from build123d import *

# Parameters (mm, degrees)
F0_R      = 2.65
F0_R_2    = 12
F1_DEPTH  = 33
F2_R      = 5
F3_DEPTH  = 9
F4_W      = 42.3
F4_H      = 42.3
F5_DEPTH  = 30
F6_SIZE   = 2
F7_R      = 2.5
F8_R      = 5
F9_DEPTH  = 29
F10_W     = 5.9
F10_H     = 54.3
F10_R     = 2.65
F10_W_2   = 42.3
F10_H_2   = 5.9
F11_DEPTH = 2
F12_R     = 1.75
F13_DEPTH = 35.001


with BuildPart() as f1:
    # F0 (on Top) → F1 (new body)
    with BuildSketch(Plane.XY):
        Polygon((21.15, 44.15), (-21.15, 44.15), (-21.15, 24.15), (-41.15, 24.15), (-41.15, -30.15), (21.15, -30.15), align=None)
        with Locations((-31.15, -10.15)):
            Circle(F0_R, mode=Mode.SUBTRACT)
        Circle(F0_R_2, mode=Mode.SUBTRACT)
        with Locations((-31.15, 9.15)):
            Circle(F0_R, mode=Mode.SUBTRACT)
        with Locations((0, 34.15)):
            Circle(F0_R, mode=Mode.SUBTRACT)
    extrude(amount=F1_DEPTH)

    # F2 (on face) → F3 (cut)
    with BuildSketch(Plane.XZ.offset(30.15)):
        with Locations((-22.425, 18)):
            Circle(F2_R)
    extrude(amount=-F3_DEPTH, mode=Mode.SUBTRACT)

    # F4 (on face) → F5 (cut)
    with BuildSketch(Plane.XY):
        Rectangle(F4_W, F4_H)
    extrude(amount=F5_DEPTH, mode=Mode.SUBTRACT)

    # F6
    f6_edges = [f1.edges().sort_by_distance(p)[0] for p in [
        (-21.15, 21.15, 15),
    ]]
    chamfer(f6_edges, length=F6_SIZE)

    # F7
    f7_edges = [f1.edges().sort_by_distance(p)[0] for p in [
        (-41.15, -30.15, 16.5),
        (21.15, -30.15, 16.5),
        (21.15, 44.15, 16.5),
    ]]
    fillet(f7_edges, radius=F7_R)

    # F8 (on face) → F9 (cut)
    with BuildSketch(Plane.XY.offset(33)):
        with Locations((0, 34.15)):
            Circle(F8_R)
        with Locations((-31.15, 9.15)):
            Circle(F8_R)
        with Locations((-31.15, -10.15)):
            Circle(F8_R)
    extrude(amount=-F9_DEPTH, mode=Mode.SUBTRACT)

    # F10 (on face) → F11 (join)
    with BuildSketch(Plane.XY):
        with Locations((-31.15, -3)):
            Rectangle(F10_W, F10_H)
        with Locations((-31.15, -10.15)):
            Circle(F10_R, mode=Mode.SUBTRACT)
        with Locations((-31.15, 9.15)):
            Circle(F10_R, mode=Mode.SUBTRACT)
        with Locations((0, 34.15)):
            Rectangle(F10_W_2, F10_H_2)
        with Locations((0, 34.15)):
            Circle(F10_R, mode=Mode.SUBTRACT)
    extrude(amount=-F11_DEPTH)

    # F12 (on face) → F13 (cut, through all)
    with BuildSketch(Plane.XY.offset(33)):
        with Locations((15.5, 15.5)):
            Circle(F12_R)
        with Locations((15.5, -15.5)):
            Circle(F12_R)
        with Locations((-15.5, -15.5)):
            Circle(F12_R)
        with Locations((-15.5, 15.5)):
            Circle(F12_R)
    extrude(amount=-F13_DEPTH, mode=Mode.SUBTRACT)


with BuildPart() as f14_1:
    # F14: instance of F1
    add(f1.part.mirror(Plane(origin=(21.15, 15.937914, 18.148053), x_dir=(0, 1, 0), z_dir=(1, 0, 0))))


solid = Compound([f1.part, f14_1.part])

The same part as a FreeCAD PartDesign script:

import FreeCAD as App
import Part
import Sketcher
Q = App.Units.Quantity


def edges_at(feature, points):
    """Names of the edges that pass closest to the given points."""
    edges = feature.Shape.Edges
    near = lambda p: min(range(len(edges)), key=lambda i: edges[i].distToShape(Part.Vertex(*p))[0])
    return sorted({f"Edge{near(p) + 1}" for p in points})


def add_polygon(sketch, points):
    """Adds a closed chain of lines whose ends are joined by coincident constraints."""
    first, n = sketch.GeometryCount, len(points)
    for a, b in zip(points, points[1:] + points[:1]):
        sketch.addGeometry(Part.LineSegment(App.Vector(*a, 0), App.Vector(*b, 0)), False)
    for i in range(n):
        sketch.addConstraint(Sketcher.Constraint("Coincident", first + i, 2, first + (i + 1) % n, 1))

doc = App.newDocument("Part")
body = doc.addObject("PartDesign::Body", "Body")

sketch1 = body.newObject("Sketcher::SketchObject", "Sketch")
sketch1.AttachmentSupport = (doc.getObject("XY_Plane"), [""])
sketch1.MapMode = "FlatFace"
add_polygon(sketch1, [(21.15, 44.15), (-21.15, 44.15), (-21.15, 24.15), (-41.15, 24.15), (-41.15, -30.15), (21.15, -30.15)])
sketch1.addGeometry(Part.Circle(App.Vector(-31.15, -10.15, 0), App.Vector(0, 0, 1), 2.65), False)
sketch1.addGeometry(Part.Circle(App.Vector(-31.15, 9.15, 0), App.Vector(0, 0, 1), 2.65), False)
sketch1.addGeometry(Part.Circle(App.Vector(0, 0, 0), App.Vector(0, 0, 1), 12), False)
sketch1.addGeometry(Part.Circle(App.Vector(0, 34.15, 0), App.Vector(0, 0, 1), 2.65), False)
sketch1.addConstraint([
    Sketcher.Constraint("Horizontal", 0),
    Sketcher.Constraint("Vertical", 1),
    Sketcher.Constraint("Horizontal", 2),
    Sketcher.Constraint("Vertical", 3),
    Sketcher.Constraint("Horizontal", 4),
    Sketcher.Constraint("Vertical", 5),
    Sketcher.Constraint("Coincident", 8, 3, -1, 1),
    Sketcher.Constraint("Equal", 6, 7),
    Sketcher.Constraint("Equal", 7, 9),
    Sketcher.Constraint("PointOnObject", 9, 3, -2),
    Sketcher.Constraint("Vertical", 6, 3, 7, 3),
    Sketcher.Constraint("Equal", 2, 1),
    Sketcher.Constraint("Diameter", 8, Q("24 mm")),
    Sketcher.Constraint("Diameter", 6, Q("5.3 mm")),
    Sketcher.Constraint("DistanceX", 2, 2, 2, 1, Q("20 mm")),
    Sketcher.Constraint("DistanceX", 0, 2, 0, 1, Q("42.3 mm")),
    Sketcher.Constraint("DistanceY", 3, 2, 3, 1, Q("54.3 mm")),
    Sketcher.Constraint("DistanceY", 7, 3, 9, 3, Q("25 mm")),
    Sketcher.Constraint("DistanceY", 9, 3, 0, 2, Q("10 mm")),
    Sketcher.Constraint("DistanceX", 7, 3, 0, 2, Q("10 mm")),
    Sketcher.Constraint("DistanceY", 3, 2, 6, 3, Q("20 mm")),
    Sketcher.Constraint("DistanceX", 6, 3, -1, 1, Q("31.15 mm")),
    Sketcher.Constraint("DistanceY", 6, 3, -1, 1, Q("10.15 mm")),
])
pad1 = body.newObject("PartDesign::Pad", "Pad")
pad1.Profile = sketch1
pad1.Length = 33

sketch2 = body.newObject("Sketcher::SketchObject", "Sketch001")
sketch2.AttachmentSupport = (doc.getObject("XZ_Plane"), [""])
sketch2.MapMode = "FlatFace"
sketch2.AttachmentOffset = App.Placement(App.Vector(0, 0, 30.15), App.Rotation())
sketch2.addGeometry(Part.Circle(App.Vector(-22.425, 18, 0), App.Vector(0, 0, 1), 5), False)
sketch2.addConstraint([
    Sketcher.Constraint("Diameter", 0, Q("10 mm")),
    Sketcher.Constraint("DistanceY", -1, 1, 0, 3, Q("18 mm")),
    Sketcher.Constraint("DistanceX", 0, 3, -1, 1, Q("22.425 mm")),
])
pocket1 = body.newObject("PartDesign::Pocket", "Pocket")
pocket1.Profile = sketch2
pocket1.Length = 9

sketch3 = body.newObject("Sketcher::SketchObject", "Sketch002")
sketch3.AttachmentSupport = (doc.getObject("XY_Plane"), [""])
sketch3.MapMode = "FlatFace"
add_polygon(sketch3, [(-21.15, 21.15), (-21.15, -21.15), (21.15, -21.15), (21.15, 21.15)])
sketch3.addConstraint([
    Sketcher.Constraint("Vertical", 0),
    Sketcher.Constraint("Horizontal", 1),
    Sketcher.Constraint("Vertical", 2),
    Sketcher.Constraint("Horizontal", 3),
    Sketcher.Constraint("Symmetric", 0, 2, 2, 2, -1, 1),
    Sketcher.Constraint("Equal", 3, 0),
    Sketcher.Constraint("DistanceX", 1, 1, 1, 2, Q("42.3 mm")),
])
pocket2 = body.newObject("PartDesign::Pocket", "Pocket001")
pocket2.Profile = sketch3
pocket2.Length = 30
pocket2.Reversed = True
doc.recompute()

chamfer = body.newObject("PartDesign::Chamfer", "Chamfer")
chamfer.Base = (pocket2, edges_at(pocket2, [(-21.15, 21.15, 15)]))
chamfer.Size = 2
doc.recompute()

fillet = body.newObject("PartDesign::Fillet", "Fillet")
fillet.Base = (chamfer, edges_at(chamfer, [(-41.15, -30.15, 16.5), (21.15, -30.15, 16.5), (21.15, 44.15, 16.5)]))
fillet.Radius = 2.5

sketch4 = body.newObject("Sketcher::SketchObject", "Sketch003")
sketch4.AttachmentSupport = (doc.getObject("XY_Plane"), [""])
sketch4.MapMode = "FlatFace"
sketch4.AttachmentOffset = App.Placement(App.Vector(0, 0, 33), App.Rotation())
sketch4.addGeometry([
    Part.Circle(App.Vector(0, 34.15, 0), App.Vector(0, 0, 1), 5),
    Part.Circle(App.Vector(-31.15, 9.15, 0), App.Vector(0, 0, 1), 5),
    Part.Circle(App.Vector(-31.15, -10.15, 0), App.Vector(0, 0, 1), 5),
], False)
sketch4.addConstraint([
    Sketcher.Constraint("Equal", 0, 1),
    Sketcher.Constraint("Equal", 1, 2),
    Sketcher.Constraint("PointOnObject", 0, 3, -2),
    Sketcher.Constraint("Vertical", 1, 3, 2, 3),
    Sketcher.Constraint("Diameter", 0, Q("10 mm")),
    Sketcher.Constraint("DistanceY", 1, 3, 0, 3, Q("25 mm")),
    Sketcher.Constraint("DistanceY", 2, 3, 1, 3, Q("19.3 mm")),
    Sketcher.Constraint("DistanceY", -1, 1, 0, 3, Q("34.15 mm")),
    Sketcher.Constraint("DistanceX", 1, 3, -1, 1, Q("31.15 mm")),
])
pocket3 = body.newObject("PartDesign::Pocket", "Pocket002")
pocket3.Profile = sketch4
pocket3.Length = 29

sketch5 = body.newObject("Sketcher::SketchObject", "Sketch004")
sketch5.AttachmentSupport = (doc.getObject("XY_Plane"), [""])
sketch5.MapMode = "FlatFace"
add_polygon(sketch5, [(-34.1, 24.15), (-34.1, -30.15), (-28.2, -30.15), (-28.2, 24.15)])
sketch5.addGeometry(Part.Circle(App.Vector(-31.15, -10.15, 0), App.Vector(0, 0, 1), 2.65), False)
sketch5.addGeometry(Part.Circle(App.Vector(-31.15, 9.15, 0), App.Vector(0, 0, 1), 2.65), False)
add_polygon(sketch5, [(-21.15, 37.1), (-21.15, 31.2), (21.15, 31.2), (21.15, 37.1)])
sketch5.addGeometry(Part.Circle(App.Vector(0, 34.15, 0), App.Vector(0, 0, 1), 2.65), False)
sketch5.addConstraint([
    Sketcher.Constraint("Vertical", 0),
    Sketcher.Constraint("Horizontal", 1),
    Sketcher.Constraint("Vertical", 2),
    Sketcher.Constraint("Horizontal", 3),
    Sketcher.Constraint("Vertical", 6),
    Sketcher.Constraint("Horizontal", 7),
    Sketcher.Constraint("Vertical", 8),
    Sketcher.Constraint("Horizontal", 9),
    Sketcher.Constraint("Equal", 4, 5),
    Sketcher.Constraint("Equal", 5, 10),
    Sketcher.Constraint("PointOnObject", 10, 3, -2),
    Sketcher.Constraint("Vertical", 4, 3, 5, 3),
    Sketcher.Constraint("Equal", 3, 6),
    Sketcher.Constraint("Diameter", 4, Q("5.3 mm")),
    Sketcher.Constraint("DistanceX", 1, 1, 1, 2, Q("5.9 mm")),
    Sketcher.Constraint("DistanceX", 7, 1, 7, 2, Q("42.3 mm")),
    Sketcher.Constraint("DistanceY", 0, 2, 0, 1, Q("54.3 mm")),
    Sketcher.Constraint("DistanceY", 5, 3, 10, 3, Q("25 mm")),
    Sketcher.Constraint("DistanceY", 0, 2, 4, 3, Q("20 mm")),
    Sketcher.Constraint("DistanceY", 5, 3, 2, 2, Q("15 mm")),
    Sketcher.Constraint("DistanceX", 5, 3, 6, 2, Q("10 mm")),
    Sketcher.Constraint("DistanceX", 0, 2, -1, 1, Q("34.1 mm")),
    Sketcher.Constraint("DistanceY", -1, 1, 6, 2, Q("31.2 mm")),
    Sketcher.Constraint("DistanceX", 4, 3, -1, 1, Q("31.15 mm")),
    Sketcher.Constraint("DistanceY", 4, 3, -1, 1, Q("10.15 mm")),
])
pad2 = body.newObject("PartDesign::Pad", "Pad001")
pad2.Profile = sketch5
pad2.Length = 2
pad2.Reversed = True

sketch6 = body.newObject("Sketcher::SketchObject", "Sketch005")
sketch6.AttachmentSupport = (doc.getObject("XY_Plane"), [""])
sketch6.MapMode = "FlatFace"
sketch6.AttachmentOffset = App.Placement(App.Vector(0, 0, 33), App.Rotation())
sketch6.addGeometry([
    Part.Circle(App.Vector(15.5, 15.5, 0), App.Vector(0, 0, 1), 1.75),
    Part.Circle(App.Vector(15.5, -15.5, 0), App.Vector(0, 0, 1), 1.75),
    Part.Circle(App.Vector(-15.5, -15.5, 0), App.Vector(0, 0, 1), 1.75),
    Part.Circle(App.Vector(-15.5, 15.5, 0), App.Vector(0, 0, 1), 1.75),
], False)
sketch6.addConstraint([
    Sketcher.Constraint("Equal", 0, 1),
    Sketcher.Constraint("Equal", 1, 2),
    Sketcher.Constraint("Equal", 2, 3),
    Sketcher.Constraint("Symmetric", 0, 3, 2, 3, -1, 1),
    Sketcher.Constraint("Symmetric", 1, 3, 3, 3, -1, 1),
    Sketcher.Constraint("Symmetric", 1, 3, 2, 3, -2),
    Sketcher.Constraint("Diameter", 0, Q("3.5 mm")),
    Sketcher.Constraint("DistanceY", 1, 3, 0, 3, Q("31 mm")),
    Sketcher.Constraint("DistanceX", 2, 3, 1, 3, Q("31 mm")),
])
pocket4 = body.newObject("PartDesign::Pocket", "Pocket003")
pocket4.Profile = sketch6
pocket4.Type = "ThroughAll"
body2 = doc.addObject("PartDesign::Body", "Body001")
doc.recompute()

mirroring = doc.addObject("Part::Mirroring", "Mirroring")
mirroring.Source = body
mirroring.Base = App.Vector(21.15, 15.937914, 18.148053)
mirroring.Normal = App.Vector(1, 0, 0)
body2.BaseFeature = mirroring
doc.recompute()
mirroring.Visibility = False

doc.recompute()
